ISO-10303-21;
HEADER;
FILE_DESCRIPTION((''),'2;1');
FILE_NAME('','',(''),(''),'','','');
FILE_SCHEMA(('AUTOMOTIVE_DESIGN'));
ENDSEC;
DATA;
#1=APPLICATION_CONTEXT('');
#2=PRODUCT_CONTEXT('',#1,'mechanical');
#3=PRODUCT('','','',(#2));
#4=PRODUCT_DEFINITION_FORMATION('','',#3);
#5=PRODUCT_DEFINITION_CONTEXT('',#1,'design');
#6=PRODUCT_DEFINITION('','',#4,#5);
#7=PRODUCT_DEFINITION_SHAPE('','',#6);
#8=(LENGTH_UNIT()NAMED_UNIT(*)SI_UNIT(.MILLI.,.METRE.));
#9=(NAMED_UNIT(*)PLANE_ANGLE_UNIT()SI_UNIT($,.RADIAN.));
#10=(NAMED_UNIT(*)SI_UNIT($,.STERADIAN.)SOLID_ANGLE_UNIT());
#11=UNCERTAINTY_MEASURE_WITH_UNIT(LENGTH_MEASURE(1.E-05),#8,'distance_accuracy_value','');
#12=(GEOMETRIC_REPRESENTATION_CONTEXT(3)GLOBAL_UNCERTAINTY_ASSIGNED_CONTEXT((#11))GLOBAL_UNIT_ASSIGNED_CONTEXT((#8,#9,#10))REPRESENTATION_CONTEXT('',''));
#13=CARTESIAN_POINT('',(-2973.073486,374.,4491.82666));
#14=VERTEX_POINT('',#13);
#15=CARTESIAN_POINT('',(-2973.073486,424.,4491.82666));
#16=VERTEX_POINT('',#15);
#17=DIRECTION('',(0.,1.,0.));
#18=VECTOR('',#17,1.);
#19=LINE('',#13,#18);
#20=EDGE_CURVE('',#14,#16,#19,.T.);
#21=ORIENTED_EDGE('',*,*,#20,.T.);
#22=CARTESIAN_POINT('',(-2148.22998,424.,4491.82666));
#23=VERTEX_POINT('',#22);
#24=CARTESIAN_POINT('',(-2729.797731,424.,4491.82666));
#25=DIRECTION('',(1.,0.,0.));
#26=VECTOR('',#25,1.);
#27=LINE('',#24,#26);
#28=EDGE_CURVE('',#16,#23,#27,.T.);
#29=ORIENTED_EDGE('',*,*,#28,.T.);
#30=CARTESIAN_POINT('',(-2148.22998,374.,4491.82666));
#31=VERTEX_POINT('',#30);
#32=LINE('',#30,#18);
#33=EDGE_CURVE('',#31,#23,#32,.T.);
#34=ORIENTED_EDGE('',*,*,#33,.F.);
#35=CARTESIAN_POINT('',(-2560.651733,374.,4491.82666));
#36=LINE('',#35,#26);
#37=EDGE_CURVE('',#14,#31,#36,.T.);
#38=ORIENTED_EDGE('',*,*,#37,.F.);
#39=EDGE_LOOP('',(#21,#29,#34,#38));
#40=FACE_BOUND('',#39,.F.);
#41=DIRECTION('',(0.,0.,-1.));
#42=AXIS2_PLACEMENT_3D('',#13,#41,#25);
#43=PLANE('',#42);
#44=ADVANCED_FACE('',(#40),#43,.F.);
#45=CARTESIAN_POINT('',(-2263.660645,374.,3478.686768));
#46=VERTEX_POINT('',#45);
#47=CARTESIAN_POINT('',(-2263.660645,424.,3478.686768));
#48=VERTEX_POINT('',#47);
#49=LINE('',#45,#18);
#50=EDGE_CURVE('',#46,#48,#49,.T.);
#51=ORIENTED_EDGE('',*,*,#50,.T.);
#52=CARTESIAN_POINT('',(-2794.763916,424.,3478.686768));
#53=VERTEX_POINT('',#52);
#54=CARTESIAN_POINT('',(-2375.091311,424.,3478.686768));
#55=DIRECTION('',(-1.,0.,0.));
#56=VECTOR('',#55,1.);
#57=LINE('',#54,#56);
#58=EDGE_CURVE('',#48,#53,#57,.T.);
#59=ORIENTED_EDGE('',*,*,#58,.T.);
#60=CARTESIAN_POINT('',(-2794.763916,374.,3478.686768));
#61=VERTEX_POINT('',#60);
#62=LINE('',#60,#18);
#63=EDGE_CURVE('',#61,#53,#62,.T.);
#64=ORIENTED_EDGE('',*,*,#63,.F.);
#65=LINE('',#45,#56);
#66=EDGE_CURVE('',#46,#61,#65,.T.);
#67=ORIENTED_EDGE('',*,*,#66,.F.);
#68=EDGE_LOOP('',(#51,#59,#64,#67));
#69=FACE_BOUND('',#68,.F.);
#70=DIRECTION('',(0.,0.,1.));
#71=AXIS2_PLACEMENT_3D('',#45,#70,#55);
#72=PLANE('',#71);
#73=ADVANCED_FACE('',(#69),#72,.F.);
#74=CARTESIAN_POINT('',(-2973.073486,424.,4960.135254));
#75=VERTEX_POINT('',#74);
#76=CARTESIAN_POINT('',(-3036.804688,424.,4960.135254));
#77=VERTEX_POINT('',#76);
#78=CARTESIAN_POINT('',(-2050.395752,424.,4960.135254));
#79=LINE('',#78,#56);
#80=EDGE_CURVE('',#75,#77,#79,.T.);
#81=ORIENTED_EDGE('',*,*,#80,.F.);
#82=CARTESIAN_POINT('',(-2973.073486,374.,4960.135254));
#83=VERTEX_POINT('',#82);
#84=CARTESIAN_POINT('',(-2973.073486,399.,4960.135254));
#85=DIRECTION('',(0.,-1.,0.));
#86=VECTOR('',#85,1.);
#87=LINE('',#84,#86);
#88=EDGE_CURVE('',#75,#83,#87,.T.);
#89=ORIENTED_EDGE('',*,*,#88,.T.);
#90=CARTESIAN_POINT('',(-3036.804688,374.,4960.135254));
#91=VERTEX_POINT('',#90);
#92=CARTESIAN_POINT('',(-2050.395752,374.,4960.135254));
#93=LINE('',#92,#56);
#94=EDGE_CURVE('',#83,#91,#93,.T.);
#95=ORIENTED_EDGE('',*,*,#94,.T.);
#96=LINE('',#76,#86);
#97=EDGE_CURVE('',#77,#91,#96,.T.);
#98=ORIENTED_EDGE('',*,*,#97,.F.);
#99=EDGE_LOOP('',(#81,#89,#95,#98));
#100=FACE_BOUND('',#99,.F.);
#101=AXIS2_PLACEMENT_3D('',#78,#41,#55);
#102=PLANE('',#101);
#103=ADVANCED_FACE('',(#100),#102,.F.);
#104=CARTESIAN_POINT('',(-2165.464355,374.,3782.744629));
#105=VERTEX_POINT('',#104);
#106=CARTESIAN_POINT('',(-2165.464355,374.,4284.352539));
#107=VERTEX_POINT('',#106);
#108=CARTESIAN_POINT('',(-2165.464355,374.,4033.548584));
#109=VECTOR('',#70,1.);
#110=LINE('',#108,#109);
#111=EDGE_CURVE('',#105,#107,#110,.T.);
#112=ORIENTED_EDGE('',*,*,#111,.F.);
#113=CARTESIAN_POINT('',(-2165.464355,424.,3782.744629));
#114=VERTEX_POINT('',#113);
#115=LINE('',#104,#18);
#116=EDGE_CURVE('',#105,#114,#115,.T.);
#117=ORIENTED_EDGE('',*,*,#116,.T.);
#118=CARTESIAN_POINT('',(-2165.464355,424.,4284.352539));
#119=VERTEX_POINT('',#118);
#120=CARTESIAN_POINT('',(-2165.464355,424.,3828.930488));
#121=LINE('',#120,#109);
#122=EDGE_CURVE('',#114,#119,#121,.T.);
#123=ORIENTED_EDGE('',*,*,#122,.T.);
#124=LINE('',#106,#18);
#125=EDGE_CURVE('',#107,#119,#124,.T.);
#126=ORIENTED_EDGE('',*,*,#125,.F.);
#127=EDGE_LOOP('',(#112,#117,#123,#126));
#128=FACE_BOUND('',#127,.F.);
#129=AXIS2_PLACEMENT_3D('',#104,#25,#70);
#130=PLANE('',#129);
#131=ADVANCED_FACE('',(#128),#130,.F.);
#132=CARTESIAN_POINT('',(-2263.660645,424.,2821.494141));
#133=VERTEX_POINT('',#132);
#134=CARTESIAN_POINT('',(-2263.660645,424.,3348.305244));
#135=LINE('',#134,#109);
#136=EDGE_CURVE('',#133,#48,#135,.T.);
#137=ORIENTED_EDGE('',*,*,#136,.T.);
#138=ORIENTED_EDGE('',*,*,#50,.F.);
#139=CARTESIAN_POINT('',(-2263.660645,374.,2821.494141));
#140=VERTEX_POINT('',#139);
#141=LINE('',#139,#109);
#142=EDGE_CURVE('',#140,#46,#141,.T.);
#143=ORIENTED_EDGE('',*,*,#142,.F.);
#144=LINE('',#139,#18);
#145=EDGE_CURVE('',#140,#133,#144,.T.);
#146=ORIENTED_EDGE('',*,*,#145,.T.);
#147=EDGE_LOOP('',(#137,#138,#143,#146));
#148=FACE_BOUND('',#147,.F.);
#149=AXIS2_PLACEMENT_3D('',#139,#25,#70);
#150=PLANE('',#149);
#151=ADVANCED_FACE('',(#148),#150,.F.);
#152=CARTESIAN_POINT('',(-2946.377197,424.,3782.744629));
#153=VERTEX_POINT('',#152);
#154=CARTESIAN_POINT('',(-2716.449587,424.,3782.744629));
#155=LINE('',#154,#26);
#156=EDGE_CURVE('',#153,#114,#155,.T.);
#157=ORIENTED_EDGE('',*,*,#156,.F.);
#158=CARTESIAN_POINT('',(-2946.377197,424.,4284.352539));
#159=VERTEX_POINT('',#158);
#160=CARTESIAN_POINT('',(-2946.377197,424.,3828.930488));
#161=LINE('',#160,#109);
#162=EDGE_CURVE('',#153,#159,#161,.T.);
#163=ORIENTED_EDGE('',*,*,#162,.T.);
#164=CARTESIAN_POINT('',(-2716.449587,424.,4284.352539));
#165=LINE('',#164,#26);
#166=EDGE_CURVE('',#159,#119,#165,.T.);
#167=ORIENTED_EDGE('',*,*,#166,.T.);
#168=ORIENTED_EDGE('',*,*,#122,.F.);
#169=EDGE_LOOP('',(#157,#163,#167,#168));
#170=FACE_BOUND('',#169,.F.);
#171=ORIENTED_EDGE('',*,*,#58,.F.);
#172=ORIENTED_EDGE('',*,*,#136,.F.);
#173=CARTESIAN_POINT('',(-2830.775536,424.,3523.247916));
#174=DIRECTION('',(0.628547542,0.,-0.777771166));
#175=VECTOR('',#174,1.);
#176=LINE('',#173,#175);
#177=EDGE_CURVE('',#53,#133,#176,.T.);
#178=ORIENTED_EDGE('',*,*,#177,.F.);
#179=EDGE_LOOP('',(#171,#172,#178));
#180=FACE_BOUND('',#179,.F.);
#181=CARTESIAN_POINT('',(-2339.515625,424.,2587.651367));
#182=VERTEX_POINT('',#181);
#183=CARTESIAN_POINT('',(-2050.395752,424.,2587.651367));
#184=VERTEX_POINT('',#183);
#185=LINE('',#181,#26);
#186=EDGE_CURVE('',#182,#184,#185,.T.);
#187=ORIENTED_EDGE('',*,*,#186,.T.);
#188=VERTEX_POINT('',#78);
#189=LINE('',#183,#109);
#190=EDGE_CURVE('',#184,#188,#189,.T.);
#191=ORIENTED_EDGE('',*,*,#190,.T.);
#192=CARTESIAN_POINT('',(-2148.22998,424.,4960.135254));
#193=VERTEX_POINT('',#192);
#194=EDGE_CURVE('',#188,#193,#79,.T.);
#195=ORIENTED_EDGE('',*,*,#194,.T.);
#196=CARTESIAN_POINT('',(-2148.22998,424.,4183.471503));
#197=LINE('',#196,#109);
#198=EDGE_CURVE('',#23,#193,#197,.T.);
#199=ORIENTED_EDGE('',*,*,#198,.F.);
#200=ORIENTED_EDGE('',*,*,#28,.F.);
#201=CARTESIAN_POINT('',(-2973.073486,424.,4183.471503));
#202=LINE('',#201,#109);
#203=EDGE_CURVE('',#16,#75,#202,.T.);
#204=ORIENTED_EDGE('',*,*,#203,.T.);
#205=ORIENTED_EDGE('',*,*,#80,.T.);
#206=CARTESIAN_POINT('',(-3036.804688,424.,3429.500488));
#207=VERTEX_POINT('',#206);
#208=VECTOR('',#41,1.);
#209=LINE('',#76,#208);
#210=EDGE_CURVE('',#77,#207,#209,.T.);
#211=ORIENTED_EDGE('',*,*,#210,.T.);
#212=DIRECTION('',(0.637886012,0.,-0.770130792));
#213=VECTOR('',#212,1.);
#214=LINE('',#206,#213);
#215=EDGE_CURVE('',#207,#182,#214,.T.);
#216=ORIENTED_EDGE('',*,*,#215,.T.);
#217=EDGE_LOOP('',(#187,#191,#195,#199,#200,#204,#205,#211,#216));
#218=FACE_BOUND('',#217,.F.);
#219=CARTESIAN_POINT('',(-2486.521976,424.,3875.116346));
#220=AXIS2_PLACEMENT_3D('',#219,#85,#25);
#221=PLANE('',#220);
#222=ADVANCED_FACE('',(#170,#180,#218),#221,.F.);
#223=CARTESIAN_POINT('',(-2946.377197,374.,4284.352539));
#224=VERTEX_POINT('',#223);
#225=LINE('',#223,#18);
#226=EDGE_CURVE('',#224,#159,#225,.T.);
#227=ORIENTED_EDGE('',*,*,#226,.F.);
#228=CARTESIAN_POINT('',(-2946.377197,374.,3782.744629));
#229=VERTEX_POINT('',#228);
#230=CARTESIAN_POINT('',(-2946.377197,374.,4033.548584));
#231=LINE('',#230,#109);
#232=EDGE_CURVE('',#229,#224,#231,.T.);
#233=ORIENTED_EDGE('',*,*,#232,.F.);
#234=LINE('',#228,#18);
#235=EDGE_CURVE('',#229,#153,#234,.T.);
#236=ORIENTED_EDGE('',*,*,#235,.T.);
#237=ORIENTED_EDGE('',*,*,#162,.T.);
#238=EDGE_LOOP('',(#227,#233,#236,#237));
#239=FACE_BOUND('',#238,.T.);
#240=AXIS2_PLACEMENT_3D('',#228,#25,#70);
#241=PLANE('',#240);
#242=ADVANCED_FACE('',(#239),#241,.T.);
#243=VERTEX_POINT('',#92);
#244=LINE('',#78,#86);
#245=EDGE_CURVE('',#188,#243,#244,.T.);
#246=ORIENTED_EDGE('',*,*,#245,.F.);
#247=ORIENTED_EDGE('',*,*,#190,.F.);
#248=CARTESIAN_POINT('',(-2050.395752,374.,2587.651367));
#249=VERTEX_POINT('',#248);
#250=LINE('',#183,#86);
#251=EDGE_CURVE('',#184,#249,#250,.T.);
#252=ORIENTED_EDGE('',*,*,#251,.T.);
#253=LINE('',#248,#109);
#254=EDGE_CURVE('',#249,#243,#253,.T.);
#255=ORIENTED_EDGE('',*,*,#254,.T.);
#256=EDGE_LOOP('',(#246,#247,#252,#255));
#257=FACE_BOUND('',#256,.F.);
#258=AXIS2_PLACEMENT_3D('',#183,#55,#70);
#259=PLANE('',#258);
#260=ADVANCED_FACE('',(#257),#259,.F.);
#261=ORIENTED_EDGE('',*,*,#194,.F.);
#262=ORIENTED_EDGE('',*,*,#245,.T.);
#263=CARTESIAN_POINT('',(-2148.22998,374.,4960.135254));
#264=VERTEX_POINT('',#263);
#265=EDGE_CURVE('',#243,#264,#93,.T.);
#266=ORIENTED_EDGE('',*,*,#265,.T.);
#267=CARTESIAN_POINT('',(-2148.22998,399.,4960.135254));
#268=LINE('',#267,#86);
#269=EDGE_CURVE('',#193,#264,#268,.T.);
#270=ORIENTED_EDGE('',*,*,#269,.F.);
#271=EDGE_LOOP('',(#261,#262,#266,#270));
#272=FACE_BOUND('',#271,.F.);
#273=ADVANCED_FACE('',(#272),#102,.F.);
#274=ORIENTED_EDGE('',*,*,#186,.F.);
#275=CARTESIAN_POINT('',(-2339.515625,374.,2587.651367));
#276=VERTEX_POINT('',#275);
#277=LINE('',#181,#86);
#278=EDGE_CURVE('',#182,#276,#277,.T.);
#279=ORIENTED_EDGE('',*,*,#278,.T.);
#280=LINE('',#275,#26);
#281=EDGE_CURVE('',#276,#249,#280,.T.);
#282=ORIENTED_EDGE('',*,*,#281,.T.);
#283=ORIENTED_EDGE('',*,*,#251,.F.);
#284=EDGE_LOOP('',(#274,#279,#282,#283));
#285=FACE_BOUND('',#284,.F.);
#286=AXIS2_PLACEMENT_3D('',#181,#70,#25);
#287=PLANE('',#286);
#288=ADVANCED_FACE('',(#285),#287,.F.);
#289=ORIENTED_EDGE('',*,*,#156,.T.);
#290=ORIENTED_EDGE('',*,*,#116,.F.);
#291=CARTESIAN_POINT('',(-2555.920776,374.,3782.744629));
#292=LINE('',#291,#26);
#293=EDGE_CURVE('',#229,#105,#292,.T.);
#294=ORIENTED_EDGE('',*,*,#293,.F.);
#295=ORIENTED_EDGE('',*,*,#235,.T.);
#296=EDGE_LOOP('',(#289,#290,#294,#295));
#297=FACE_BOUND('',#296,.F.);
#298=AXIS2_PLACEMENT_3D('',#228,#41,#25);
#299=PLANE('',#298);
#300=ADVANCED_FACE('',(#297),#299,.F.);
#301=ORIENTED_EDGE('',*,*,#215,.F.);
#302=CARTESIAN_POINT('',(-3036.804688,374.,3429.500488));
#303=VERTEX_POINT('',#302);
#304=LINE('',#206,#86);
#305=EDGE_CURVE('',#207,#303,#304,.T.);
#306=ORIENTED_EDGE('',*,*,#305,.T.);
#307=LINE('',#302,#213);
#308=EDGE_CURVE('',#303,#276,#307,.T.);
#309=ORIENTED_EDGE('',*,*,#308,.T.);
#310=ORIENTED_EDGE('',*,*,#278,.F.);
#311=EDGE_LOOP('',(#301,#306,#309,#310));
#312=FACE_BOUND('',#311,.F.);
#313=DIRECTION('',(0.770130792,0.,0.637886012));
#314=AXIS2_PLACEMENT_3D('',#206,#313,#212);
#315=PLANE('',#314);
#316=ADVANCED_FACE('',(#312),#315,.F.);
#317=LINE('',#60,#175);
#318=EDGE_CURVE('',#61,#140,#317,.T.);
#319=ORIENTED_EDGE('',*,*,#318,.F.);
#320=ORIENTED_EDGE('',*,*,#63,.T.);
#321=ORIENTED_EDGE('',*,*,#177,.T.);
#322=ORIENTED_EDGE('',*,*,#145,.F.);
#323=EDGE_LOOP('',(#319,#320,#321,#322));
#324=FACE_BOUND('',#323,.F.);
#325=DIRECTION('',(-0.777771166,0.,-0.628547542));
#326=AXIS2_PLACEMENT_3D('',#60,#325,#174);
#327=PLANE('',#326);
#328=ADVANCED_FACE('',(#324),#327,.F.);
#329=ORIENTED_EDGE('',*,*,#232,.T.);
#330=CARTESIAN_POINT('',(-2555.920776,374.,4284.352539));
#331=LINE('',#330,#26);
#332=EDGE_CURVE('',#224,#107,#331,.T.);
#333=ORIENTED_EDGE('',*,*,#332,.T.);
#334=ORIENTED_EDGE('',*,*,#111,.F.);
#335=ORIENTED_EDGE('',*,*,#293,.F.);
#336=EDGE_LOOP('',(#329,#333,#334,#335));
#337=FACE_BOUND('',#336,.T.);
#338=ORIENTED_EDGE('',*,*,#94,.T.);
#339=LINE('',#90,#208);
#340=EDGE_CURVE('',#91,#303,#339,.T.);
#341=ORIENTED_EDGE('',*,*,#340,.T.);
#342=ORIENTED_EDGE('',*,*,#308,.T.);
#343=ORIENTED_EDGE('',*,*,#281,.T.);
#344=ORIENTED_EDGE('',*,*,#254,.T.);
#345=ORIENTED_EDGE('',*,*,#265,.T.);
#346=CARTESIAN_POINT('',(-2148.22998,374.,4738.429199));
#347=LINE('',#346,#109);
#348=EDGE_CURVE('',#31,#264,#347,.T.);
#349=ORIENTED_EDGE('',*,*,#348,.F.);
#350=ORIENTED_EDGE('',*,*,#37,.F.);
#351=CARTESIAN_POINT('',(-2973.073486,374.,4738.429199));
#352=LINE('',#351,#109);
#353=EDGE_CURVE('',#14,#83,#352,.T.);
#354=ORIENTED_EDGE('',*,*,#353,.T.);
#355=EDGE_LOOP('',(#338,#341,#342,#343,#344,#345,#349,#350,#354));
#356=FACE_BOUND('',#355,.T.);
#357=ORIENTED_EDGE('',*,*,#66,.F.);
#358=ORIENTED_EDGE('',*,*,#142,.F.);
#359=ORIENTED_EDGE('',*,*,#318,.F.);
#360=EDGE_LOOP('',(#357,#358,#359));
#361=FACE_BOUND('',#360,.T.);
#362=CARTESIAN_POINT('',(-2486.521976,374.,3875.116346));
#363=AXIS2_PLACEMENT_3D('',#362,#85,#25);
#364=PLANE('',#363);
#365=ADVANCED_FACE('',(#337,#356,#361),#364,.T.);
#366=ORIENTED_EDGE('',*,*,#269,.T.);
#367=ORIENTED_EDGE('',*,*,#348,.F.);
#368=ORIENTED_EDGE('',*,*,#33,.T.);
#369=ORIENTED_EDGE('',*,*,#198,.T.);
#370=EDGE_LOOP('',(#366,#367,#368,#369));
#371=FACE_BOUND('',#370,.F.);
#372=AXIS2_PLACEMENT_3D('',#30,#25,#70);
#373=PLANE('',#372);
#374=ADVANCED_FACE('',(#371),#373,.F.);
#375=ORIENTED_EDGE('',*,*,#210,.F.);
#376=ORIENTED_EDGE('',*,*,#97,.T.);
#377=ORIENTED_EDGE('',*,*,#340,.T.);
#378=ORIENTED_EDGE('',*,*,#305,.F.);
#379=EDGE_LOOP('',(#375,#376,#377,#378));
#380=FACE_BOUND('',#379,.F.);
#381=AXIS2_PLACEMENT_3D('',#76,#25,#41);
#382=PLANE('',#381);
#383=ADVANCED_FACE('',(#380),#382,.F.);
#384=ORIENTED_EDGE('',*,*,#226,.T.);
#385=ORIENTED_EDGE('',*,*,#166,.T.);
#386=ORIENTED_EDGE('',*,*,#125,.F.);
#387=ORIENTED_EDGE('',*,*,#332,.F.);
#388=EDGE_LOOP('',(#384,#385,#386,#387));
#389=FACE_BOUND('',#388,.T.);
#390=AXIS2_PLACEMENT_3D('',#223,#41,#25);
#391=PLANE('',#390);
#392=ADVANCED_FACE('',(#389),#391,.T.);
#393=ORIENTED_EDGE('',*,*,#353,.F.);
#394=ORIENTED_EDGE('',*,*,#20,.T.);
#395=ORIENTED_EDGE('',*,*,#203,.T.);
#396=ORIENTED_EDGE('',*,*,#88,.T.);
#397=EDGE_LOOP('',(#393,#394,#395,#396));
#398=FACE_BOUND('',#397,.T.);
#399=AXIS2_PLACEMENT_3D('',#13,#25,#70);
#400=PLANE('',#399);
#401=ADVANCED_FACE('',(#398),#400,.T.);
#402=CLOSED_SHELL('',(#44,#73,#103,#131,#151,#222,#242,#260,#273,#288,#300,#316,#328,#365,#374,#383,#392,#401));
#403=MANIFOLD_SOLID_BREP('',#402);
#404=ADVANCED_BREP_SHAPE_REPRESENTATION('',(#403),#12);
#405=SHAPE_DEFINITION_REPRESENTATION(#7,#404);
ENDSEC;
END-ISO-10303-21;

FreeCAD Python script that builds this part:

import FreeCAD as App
import Part
import Sketcher

doc = App.newDocument("Part")
body = doc.addObject("PartDesign::Body", "Body")

sketch1 = body.newObject("Sketcher::SketchObject", "Sketch")
sketch1.AttachmentSupport = (doc.getObject("XZ_Plane"), [""])
sketch1.MapMode = "FlatFace"
sketch1.addGeometry(Part.LineSegment(App.Vector(-3037, 4960, 0), App.Vector(-3037, 3430, 0)), False)
sketch1.addGeometry(Part.LineSegment(App.Vector(-3037, 3430, 0), App.Vector(-2340, 2588, 0)), False)
sketch1.addGeometry(Part.LineSegment(App.Vector(-2340, 2588, 0), App.Vector(-2050, 2588, 0)), False)
sketch1.addGeometry(Part.LineSegment(App.Vector(-2050, 2588, 0), App.Vector(-2050, 4960, 0)), False)
sketch1.addGeometry(Part.LineSegment(App.Vector(-2050, 4960, 0), App.Vector(-3037, 4960, 0)), False)
sketch1.addConstraint(Sketcher.Constraint("Coincident", 0, 2, 1, 1))
sketch1.addConstraint(Sketcher.Constraint("Coincident", 1, 2, 2, 1))
sketch1.addConstraint(Sketcher.Constraint("Coincident", 2, 2, 3, 1))
sketch1.addConstraint(Sketcher.Constraint("Coincident", 3, 2, 4, 1))
sketch1.addConstraint(Sketcher.Constraint("Coincident", 4, 2, 0, 1))
sketch1.addConstraint(Sketcher.Constraint("Vertical", 0))
sketch1.addConstraint(Sketcher.Constraint("Horizontal", 2))
sketch1.addConstraint(Sketcher.Constraint("Vertical", 3))
sketch1.addConstraint(Sketcher.Constraint("Horizontal", 4))
sketch1.addConstraint(Sketcher.Constraint("Distance", 1, 1093.124869))
sketch1.addConstraint(Sketcher.Constraint("DistanceX", 2, 1, 2, 2, 289.119873))
sketch1.addConstraint(Sketcher.Constraint("DistanceX", 4, 2, 4, 1, 986.408936))
sketch1.addConstraint(Sketcher.Constraint("DistanceY", 0, 2, 0, 1, 1530.634766))
sketch1.addConstraint(Sketcher.Constraint("DistanceX", 0, 2, -1, 1, 3036.804688))
sketch1.addConstraint(Sketcher.Constraint("DistanceY", -1, 1, 0, 2, 3429.500488))
pad1 = body.newObject("PartDesign::Pad", "Pad")
pad1.Profile = sketch1
pad1.Length = 50

sketch2 = body.newObject("Sketcher::SketchObject", "Sketch001")
sketch2.AttachmentSupport = (doc.getObject("XZ_Plane"), [""])
sketch2.MapMode = "FlatFace"
sketch2.AttachmentOffset = App.Placement(App.Vector(0, 0, 50), App.Rotation())
sketch2.addGeometry(Part.LineSegment(App.Vector(-2795, 3479, 0), App.Vector(-2264, 2821, 0)), False)
sketch2.addGeometry(Part.LineSegment(App.Vector(-2264, 2821, 0), App.Vector(-2264, 3479, 0)), False)
sketch2.addGeometry(Part.LineSegment(App.Vector(-2264, 3479, 0), App.Vector(-2795, 3479, 0)), False)
sketch2.addConstraint(Sketcher.Constraint("Coincident", 0, 2, 1, 1))
sketch2.addConstraint(Sketcher.Constraint("Coincident", 1, 2, 2, 1))
sketch2.addConstraint(Sketcher.Constraint("Coincident", 2, 2, 0, 1))
sketch2.addConstraint(Sketcher.Constraint("Vertical", 1))
sketch2.addConstraint(Sketcher.Constraint("Horizontal", 2))
sketch2.addConstraint(Sketcher.Constraint("DistanceX", 2, 2, 2, 1, 531.103271))
sketch2.addConstraint(Sketcher.Constraint("Distance", 0, 844.969132))
sketch2.addConstraint(Sketcher.Constraint("DistanceY", -1, 1, 0, 2, 2821.494141))
sketch2.addConstraint(Sketcher.Constraint("DistanceX", 0, 2, -1, 1, 2263.660645))
pocket1 = body.newObject("PartDesign::Pocket", "Pocket")
pocket1.Profile = sketch2
pocket1.Length = 59

sketch3 = body.newObject("Sketcher::SketchObject", "Sketch002")
sketch3.AttachmentSupport = (doc.getObject("XZ_Plane"), [""])
sketch3.MapMode = "FlatFace"
sketch3.AttachmentOffset = App.Placement(App.Vector(0, 0, 50), App.Rotation())
sketch3.addGeometry(Part.LineSegment(App.Vector(-2946, 4284, 0), App.Vector(-2946, 3783, 0)), False)
sketch3.addGeometry(Part.LineSegment(App.Vector(-2946, 3783, 0), App.Vector(-2165, 3783, 0)), False)
sketch3.addGeometry(Part.LineSegment(App.Vector(-2165, 3783, 0), App.Vector(-2165, 4284, 0)), False)
sketch3.addGeometry(Part.LineSegment(App.Vector(-2165, 4284, 0), App.Vector(-2946, 4284, 0)), False)
sketch3.addConstraint(Sketcher.Constraint("Coincident", 0, 2, 1, 1))
sketch3.addConstraint(Sketcher.Constraint("Coincident", 1, 2, 2, 1))
sketch3.addConstraint(Sketcher.Constraint("Coincident", 2, 2, 3, 1))
sketch3.addConstraint(Sketcher.Constraint("Coincident", 3, 2, 0, 1))
sketch3.addConstraint(Sketcher.Constraint("Vertical", 0))
sketch3.addConstraint(Sketcher.Constraint("Horizontal", 1))
sketch3.addConstraint(Sketcher.Constraint("Vertical", 2))
sketch3.addConstraint(Sketcher.Constraint("Horizontal", 3))
sketch3.addConstraint(Sketcher.Constraint("DistanceX", 1, 1, 1, 2, 780.912842))
sketch3.addConstraint(Sketcher.Constraint("DistanceY", 0, 2, 0, 1, 501.60791))
sketch3.addConstraint(Sketcher.Constraint("DistanceY", -1, 1, 0, 2, 3782.744629))
sketch3.addConstraint(Sketcher.Constraint("DistanceX", 0, 2, -1, 1, 2946.377197))
pocket2 = body.newObject("PartDesign::Pocket", "Pocket001")
pocket2.Profile = sketch3
pocket2.Length = 60

sketch4 = body.newObject("Sketcher::SketchObject", "Sketch003")
sketch4.AttachmentSupport = (doc.getObject("XZ_Plane"), [""])
sketch4.MapMode = "FlatFace"
sketch4.AttachmentOffset = App.Placement(App.Vector(0, 0, 50), App.Rotation())
sketch4.addGeometry(Part.LineSegment(App.Vector(-2973, 4985, 0), App.Vector(-2973, 4492, 0)), False)
sketch4.addGeometry(Part.LineSegment(App.Vector(-2973, 4492, 0), App.Vector(-2148, 4492, 0)), False)
sketch4.addGeometry(Part.LineSegment(App.Vector(-2148, 4492, 0), App.Vector(-2148, 4985, 0)), False)
sketch4.addGeometry(Part.LineSegment(App.Vector(-2148, 4985, 0), App.Vector(-2973, 4985, 0)), False)
sketch4.addConstraint(Sketcher.Constraint("Coincident", 0, 2, 1, 1))
sketch4.addConstraint(Sketcher.Constraint("Coincident", 1, 2, 2, 1))
sketch4.addConstraint(Sketcher.Constraint("Coincident", 2, 2, 3, 1))
sketch4.addConstraint(Sketcher.Constraint("Coincident", 3, 2, 0, 1))
sketch4.addConstraint(Sketcher.Constraint("Vertical", 0))
sketch4.addConstraint(Sketcher.Constraint("Horizontal", 1))
sketch4.addConstraint(Sketcher.Constraint("Vertical", 2))
sketch4.addConstraint(Sketcher.Constraint("Horizontal", 3))
sketch4.addConstraint(Sketcher.Constraint("DistanceX", 1, 1, 1, 2, 824.843506))
sketch4.addConstraint(Sketcher.Constraint("DistanceY", 0, 2, 0, 1, 493.205078))
sketch4.addConstraint(Sketcher.Constraint("DistanceY", -1, 1, 0, 2, 4491.82666))
sketch4.addConstraint(Sketcher.Constraint("DistanceX", 1, 2, -1, 1, 2148.22998))
pocket3 = body.newObject("PartDesign::Pocket", "Pocket002")
pocket3.Profile = sketch4
pocket3.Length = 60
body2 = doc.addObject("PartDesign::Body", "Body001")
doc.recompute()

body.Placement = App.Placement(App.Vector(0, 424, 0), App.Rotation(App.Vector(0, 0, 1), 0))
boolean = body2.newObject("PartDesign::Boolean", "Boolean")
boolean.Type = "Fuse"
boolean.addObjects([body])

doc.recompute()
